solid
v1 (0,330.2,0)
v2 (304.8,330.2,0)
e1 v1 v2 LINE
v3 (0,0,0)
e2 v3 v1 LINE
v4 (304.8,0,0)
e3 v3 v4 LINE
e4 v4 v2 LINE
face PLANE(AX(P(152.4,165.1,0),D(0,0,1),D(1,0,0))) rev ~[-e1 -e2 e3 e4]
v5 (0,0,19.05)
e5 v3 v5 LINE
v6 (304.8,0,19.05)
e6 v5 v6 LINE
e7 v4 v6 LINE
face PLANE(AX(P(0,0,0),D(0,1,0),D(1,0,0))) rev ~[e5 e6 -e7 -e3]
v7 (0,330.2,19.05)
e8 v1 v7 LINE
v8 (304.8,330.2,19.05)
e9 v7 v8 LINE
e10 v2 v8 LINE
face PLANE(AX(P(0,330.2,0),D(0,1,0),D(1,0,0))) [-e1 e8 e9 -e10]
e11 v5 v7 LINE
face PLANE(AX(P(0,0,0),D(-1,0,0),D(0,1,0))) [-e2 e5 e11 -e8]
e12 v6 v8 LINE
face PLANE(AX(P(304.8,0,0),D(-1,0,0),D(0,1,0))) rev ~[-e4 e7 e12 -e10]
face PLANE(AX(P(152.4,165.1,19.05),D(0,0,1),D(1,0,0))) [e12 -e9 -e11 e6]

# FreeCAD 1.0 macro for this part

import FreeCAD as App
import Part
import Sketcher
from FreeCAD import Vector
Q = App.Units.Quantity

doc = App.newDocument("Part")
body = doc.addObject("PartDesign::Body", "Body")

sketch1 = doc.addObject("Sketcher::SketchObject", "Sketch")
body.addObject(sketch1)
sketch1.AttachmentSupport = (doc.XY_Plane, [""])
sketch1.MapMode = "FlatFace"
sketch1.addGeometry(Part.LineSegment(Vector(0, 330, 0), Vector(0, 0, 0)), False)
sketch1.addGeometry(Part.LineSegment(Vector(0, 0, 0), Vector(305, 0, 0)), False)
sketch1.addGeometry(Part.LineSegment(Vector(305, 0, 0), Vector(305, 330, 0)), False)
sketch1.addGeometry(Part.LineSegment(Vector(305, 330, 0), Vector(0, 330, 0)), False)
sketch1.addConstraint(Sketcher.Constraint("Coincident", 0, 2, 1, 1))
sketch1.addConstraint(Sketcher.Constraint("Coincident", 1, 2, 2, 1))
sketch1.addConstraint(Sketcher.Constraint("Coincident", 2, 2, 3, 1))
sketch1.addConstraint(Sketcher.Constraint("Coincident", 3, 2, 0, 1))
sketch1.addConstraint(Sketcher.Constraint("Vertical", 0))
sketch1.addConstraint(Sketcher.Constraint("Horizontal", 1))
sketch1.addConstraint(Sketcher.Constraint("Vertical", 2))
sketch1.addConstraint(Sketcher.Constraint("Horizontal", 3))
sketch1.addConstraint(Sketcher.Constraint("Coincident", 0, 2, -1, 1))
sketch1.addConstraint(Sketcher.Constraint("DistanceX", 1, 1, 1, 2, Q("12 in")))
sketch1.addConstraint(Sketcher.Constraint("DistanceY", 0, 2, 0, 1, Q("13 in")))
pad1 = doc.addObject("PartDesign::Pad", "Pad")
body.addObject(pad1)
pad1.Profile = sketch1
pad1.Length = Q("0.75 in")

doc.recompute()
